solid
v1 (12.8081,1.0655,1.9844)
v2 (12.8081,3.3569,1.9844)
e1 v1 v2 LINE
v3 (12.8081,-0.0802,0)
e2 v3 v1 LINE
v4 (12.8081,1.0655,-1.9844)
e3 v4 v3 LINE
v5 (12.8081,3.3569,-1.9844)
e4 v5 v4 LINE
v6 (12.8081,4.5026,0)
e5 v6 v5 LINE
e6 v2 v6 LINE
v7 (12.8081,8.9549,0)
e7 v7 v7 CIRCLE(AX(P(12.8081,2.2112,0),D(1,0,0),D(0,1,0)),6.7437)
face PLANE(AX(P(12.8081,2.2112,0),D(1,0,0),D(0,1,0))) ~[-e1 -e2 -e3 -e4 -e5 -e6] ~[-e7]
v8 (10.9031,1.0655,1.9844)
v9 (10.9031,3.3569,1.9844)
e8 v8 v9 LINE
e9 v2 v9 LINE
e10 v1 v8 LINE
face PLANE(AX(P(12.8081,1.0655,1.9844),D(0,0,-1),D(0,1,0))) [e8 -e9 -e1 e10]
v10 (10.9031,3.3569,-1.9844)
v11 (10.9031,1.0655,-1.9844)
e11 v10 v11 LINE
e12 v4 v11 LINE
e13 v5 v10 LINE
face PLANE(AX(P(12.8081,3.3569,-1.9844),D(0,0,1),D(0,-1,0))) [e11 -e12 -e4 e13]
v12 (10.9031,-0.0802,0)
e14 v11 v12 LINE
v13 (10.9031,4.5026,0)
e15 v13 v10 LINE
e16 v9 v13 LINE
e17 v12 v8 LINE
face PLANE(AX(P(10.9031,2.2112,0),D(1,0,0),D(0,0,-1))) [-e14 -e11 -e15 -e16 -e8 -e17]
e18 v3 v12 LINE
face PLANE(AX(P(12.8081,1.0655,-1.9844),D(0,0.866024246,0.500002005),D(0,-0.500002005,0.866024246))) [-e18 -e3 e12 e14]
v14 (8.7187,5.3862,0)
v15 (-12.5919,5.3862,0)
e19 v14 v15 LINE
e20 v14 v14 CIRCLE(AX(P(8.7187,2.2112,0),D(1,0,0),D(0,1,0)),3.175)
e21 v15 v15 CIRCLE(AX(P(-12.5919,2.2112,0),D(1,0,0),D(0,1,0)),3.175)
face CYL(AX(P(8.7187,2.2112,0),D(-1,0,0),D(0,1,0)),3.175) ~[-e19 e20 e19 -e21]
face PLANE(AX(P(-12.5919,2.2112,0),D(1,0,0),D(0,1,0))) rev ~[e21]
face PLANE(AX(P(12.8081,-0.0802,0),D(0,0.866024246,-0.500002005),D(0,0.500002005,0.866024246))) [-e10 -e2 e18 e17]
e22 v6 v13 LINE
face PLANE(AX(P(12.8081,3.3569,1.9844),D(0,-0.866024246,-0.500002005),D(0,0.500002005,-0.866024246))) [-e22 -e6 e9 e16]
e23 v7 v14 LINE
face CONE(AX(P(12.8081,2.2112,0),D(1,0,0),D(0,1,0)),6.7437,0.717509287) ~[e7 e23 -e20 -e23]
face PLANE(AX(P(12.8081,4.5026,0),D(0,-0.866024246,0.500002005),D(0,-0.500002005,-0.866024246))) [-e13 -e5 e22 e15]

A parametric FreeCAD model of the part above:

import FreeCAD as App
import Part
import Sketcher
Q = App.Units.Quantity


def add_polygon(sketch, points):
    """Adds a closed chain of lines whose ends are joined by coincident constraints."""
    first, n = sketch.GeometryCount, len(points)
    for a, b in zip(points, points[1:] + points[:1]):
        sketch.addGeometry(Part.LineSegment(App.Vector(*a, 0), App.Vector(*b, 0)), False)
    for i in range(n):
        sketch.addConstraint(Sketcher.Constraint("Coincident", first + i, 2, first + (i + 1) % n, 1))

doc = App.newDocument("Part")
body = doc.addObject("PartDesign::Body", "Body")

# Sketch on XY plane
sketch1 = body.newObject("Sketcher::SketchObject", "Sketch")
sketch1.AttachmentSupport = (doc.getObject("XY_Plane"), [""])
sketch1.MapMode = "FlatFace"
add_polygon(sketch1, [(-12.6, 5.4), (-12.6, 2.2), (12.8, 2.2), (12.8, 9), (8.7, 5.4)])  # lines 0-4
sketch1.addGeometry(Part.LineSegment(App.Vector(-12.6, 2.2, 0), App.Vector(12.8, 2.2, 0)), True)  # axis
sketch1.addConstraint([
    Sketcher.Constraint("Vertical", 0),
    Sketcher.Constraint("Horizontal", 1),
    Sketcher.Constraint("Vertical", 2),
    Sketcher.Constraint("Horizontal", 4),
    Sketcher.Constraint("Horizontal", 5),
    Sketcher.Constraint("Coincident", 5, 1, 0, 2),
    Sketcher.Constraint("Vertical", 2, 2, 5, 2),
    Sketcher.Constraint("DistanceX", 1, 1, 1, 2, Q("1 in")),
    Sketcher.Constraint("DistanceY", 0, 2, 0, 1, Q("0.125 in")),
    Sketcher.Constraint("DistanceY", 2, 1, 2, 2, Q("0.2655 in")),
    Sketcher.Constraint("DistanceX", 3, 2, 1, 2, Q("0.161 in")),
    Sketcher.Constraint("DistanceX", 0, 2, -1, 1, 12.592),
    Sketcher.Constraint("DistanceY", -1, 1, 0, 2, 2.2112),
])
revolution = body.newObject("PartDesign::Revolution", "Revolution")
revolution.Profile = sketch1
revolution.ReferenceAxis = (sketch1, ["Axis0"])
revolution.Angle = 360

# Sketch on YZ plane
sketch2 = body.newObject("Sketcher::SketchObject", "Sketch001")
sketch2.AttachmentSupport = (doc.getObject("YZ_Plane"), [""])
sketch2.MapMode = "FlatFace"
sketch2.AttachmentOffset = App.Placement(App.Vector(0, 0, 12.8081), App.Rotation())
add_polygon(sketch2, [(1.1, 2), (-0.1, 0), (1.1, -2), (3.4, -2), (4.5, 0), (3.4, 2)])  # lines 0-5
sketch2.addConstraint([
    Sketcher.Constraint("Horizontal", 2),
    Sketcher.Constraint("Horizontal", 5),
    Sketcher.Constraint("Symmetric", 2, 2, 4, 2, -1),
    Sketcher.Constraint("PointOnObject", 0, 2, -1),
    Sketcher.Constraint("PointOnObject", 3, 2, -1),
    Sketcher.Constraint("Parallel", 0, 3),
    Sketcher.Constraint("Parallel", 1, 4),
    Sketcher.Constraint("Angle", 0, Q("-120.0001 deg")),
    Sketcher.Constraint("DistanceY", 2, 2, 4, 2, Q("0.156252 in")),
    Sketcher.Constraint("DistanceX", 2, 1, 2, 2, 2.2914),
    Sketcher.Constraint("DistanceX", 0, 2, -1, 1, 0.0802),
])
pocket1 = body.newObject("PartDesign::Pocket", "Pocket")
pocket1.Profile = sketch2
pocket1.Length = Q("0.075 in")

doc.recompute()
